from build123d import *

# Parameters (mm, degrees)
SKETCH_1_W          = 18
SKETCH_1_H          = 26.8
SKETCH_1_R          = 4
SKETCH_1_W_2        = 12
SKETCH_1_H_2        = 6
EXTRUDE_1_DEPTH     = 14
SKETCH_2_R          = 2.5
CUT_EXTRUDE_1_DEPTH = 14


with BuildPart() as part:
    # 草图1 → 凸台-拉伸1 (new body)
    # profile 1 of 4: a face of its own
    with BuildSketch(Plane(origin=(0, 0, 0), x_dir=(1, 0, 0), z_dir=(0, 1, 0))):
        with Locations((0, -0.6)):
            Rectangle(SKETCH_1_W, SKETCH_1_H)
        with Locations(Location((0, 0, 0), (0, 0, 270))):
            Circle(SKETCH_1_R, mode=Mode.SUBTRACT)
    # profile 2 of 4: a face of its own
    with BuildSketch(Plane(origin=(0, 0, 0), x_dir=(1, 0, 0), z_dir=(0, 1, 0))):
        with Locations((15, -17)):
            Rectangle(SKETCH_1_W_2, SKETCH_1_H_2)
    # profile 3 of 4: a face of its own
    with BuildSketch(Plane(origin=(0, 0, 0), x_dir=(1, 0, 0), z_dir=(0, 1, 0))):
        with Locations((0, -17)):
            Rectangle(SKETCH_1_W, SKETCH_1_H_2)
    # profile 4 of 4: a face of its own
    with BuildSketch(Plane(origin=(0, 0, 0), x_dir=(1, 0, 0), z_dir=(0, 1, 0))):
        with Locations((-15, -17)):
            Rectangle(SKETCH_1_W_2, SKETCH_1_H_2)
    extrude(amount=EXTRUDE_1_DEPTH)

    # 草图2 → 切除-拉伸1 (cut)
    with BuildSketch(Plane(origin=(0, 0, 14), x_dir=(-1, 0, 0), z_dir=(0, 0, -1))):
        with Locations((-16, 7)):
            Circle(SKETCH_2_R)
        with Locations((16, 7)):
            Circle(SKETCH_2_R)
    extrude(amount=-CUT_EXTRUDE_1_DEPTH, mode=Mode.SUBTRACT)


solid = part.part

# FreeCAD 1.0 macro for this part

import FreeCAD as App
import Part
import Sketcher
Q = App.Units.Quantity

doc = App.newDocument("Part")
body = doc.addObject("PartDesign::Body", "Body")

sketch1 = doc.addObject("Sketcher::SketchObject", "Sketch")
body.addObject(sketch1)
sketch1.AttachmentSupport = (doc.XZ_Plane, [""])
sketch1.MapMode = "FlatFace"
sketch1.addGeometry([
    Part.LineSegment(App.Vector(-9, -12.8, 0), App.Vector(-9, 14, 0)),
    Part.LineSegment(App.Vector(-9, 14, 0), App.Vector(-21, 14, 0)),
    Part.LineSegment(App.Vector(-21, 14, 0), App.Vector(-21, 20, 0)),
    Part.LineSegment(App.Vector(-21, 20, 0), App.Vector(21, 20, 0)),
    Part.LineSegment(App.Vector(21, 20, 0), App.Vector(21, 14, 0)),
    Part.LineSegment(App.Vector(21, 14, 0), App.Vector(9, 14, 0)),
    Part.LineSegment(App.Vector(9, 14, 0), App.Vector(9, -12.8, 0)),
    Part.LineSegment(App.Vector(9, -12.8, 0), App.Vector(-9, -12.8, 0)),
    Part.Circle(App.Vector(0, 0, 0), App.Vector(0, 0, 1), 4),
], False)
sketch1.addConstraint([
    Sketcher.Constraint("Coincident", 0, 2, 1, 1),
    Sketcher.Constraint("Coincident", 1, 2, 2, 1),
    Sketcher.Constraint("Coincident", 2, 2, 3, 1),
    Sketcher.Constraint("Coincident", 3, 2, 4, 1),
    Sketcher.Constraint("Coincident", 4, 2, 5, 1),
    Sketcher.Constraint("Coincident", 5, 2, 6, 1),
    Sketcher.Constraint("Coincident", 6, 2, 7, 1),
    Sketcher.Constraint("Coincident", 7, 2, 0, 1),
    Sketcher.Constraint("Vertical", 0),
    Sketcher.Constraint("Horizontal", 1),
    Sketcher.Constraint("Vertical", 2),
    Sketcher.Constraint("Horizontal", 3),
    Sketcher.Constraint("Vertical", 4),
    Sketcher.Constraint("Horizontal", 5),
    Sketcher.Constraint("Vertical", 6),
    Sketcher.Constraint("Horizontal", 7),
    Sketcher.Constraint("Coincident", 8, 3, -1, 1),
    Sketcher.Constraint("Symmetric", 1, 2, 4, 2, -2),
    Sketcher.Constraint("Equal", 1, 5),
    Sketcher.Constraint("Diameter", 8, Q("8 mm")),
    Sketcher.Constraint("DistanceX", 1, 2, 1, 1, Q("12 mm")),
    Sketcher.Constraint("DistanceX", 3, 1, 3, 2, Q("42 mm")),
    Sketcher.Constraint("DistanceY", 2, 1, 2, 2, Q("6 mm")),
    Sketcher.Constraint("DistanceY", 0, 1, 0, 2, Q("26.8 mm")),
    Sketcher.Constraint("DistanceY", -1, 1, 0, 2, Q("14 mm")),
])
pad1 = doc.addObject("PartDesign::Pad", "Pad")
body.addObject(pad1)
pad1.Profile = sketch1
pad1.Length = 14
pad1.Reversed = True

sketch2 = doc.addObject("Sketcher::SketchObject", "Sketch001")
body.addObject(sketch2)
sketch2.AttachmentSupport = (doc.XY_Plane, [""])
sketch2.MapMode = "FlatFace"
sketch2.AttachmentOffset = App.Placement(App.Vector(0, 0, 14), App.Rotation())
sketch2.addGeometry([
    Part.Circle(App.Vector(16, 7, 0), App.Vector(0, 0, 1), 2.5),
    Part.Circle(App.Vector(-16, 7, 0), App.Vector(0, 0, 1), 2.5),
], False)
sketch2.addConstraint([
    Sketcher.Constraint("Equal", 0, 1),
    Sketcher.Constraint("Symmetric", 0, 3, 1, 3, -2),
    Sketcher.Constraint("Diameter", 0, Q("5 mm")),
    Sketcher.Constraint("DistanceX", -1, 1, 0, 3, Q("16 mm")),
    Sketcher.Constraint("DistanceY", -1, 1, 0, 3, Q("7 mm")),
])
pocket1 = doc.addObject("PartDesign::Pocket", "Pocket")
body.addObject(pocket1)
pocket1.Profile = sketch2
pocket1.Length = 14
pocket1.Reversed = True

doc.recompute()
